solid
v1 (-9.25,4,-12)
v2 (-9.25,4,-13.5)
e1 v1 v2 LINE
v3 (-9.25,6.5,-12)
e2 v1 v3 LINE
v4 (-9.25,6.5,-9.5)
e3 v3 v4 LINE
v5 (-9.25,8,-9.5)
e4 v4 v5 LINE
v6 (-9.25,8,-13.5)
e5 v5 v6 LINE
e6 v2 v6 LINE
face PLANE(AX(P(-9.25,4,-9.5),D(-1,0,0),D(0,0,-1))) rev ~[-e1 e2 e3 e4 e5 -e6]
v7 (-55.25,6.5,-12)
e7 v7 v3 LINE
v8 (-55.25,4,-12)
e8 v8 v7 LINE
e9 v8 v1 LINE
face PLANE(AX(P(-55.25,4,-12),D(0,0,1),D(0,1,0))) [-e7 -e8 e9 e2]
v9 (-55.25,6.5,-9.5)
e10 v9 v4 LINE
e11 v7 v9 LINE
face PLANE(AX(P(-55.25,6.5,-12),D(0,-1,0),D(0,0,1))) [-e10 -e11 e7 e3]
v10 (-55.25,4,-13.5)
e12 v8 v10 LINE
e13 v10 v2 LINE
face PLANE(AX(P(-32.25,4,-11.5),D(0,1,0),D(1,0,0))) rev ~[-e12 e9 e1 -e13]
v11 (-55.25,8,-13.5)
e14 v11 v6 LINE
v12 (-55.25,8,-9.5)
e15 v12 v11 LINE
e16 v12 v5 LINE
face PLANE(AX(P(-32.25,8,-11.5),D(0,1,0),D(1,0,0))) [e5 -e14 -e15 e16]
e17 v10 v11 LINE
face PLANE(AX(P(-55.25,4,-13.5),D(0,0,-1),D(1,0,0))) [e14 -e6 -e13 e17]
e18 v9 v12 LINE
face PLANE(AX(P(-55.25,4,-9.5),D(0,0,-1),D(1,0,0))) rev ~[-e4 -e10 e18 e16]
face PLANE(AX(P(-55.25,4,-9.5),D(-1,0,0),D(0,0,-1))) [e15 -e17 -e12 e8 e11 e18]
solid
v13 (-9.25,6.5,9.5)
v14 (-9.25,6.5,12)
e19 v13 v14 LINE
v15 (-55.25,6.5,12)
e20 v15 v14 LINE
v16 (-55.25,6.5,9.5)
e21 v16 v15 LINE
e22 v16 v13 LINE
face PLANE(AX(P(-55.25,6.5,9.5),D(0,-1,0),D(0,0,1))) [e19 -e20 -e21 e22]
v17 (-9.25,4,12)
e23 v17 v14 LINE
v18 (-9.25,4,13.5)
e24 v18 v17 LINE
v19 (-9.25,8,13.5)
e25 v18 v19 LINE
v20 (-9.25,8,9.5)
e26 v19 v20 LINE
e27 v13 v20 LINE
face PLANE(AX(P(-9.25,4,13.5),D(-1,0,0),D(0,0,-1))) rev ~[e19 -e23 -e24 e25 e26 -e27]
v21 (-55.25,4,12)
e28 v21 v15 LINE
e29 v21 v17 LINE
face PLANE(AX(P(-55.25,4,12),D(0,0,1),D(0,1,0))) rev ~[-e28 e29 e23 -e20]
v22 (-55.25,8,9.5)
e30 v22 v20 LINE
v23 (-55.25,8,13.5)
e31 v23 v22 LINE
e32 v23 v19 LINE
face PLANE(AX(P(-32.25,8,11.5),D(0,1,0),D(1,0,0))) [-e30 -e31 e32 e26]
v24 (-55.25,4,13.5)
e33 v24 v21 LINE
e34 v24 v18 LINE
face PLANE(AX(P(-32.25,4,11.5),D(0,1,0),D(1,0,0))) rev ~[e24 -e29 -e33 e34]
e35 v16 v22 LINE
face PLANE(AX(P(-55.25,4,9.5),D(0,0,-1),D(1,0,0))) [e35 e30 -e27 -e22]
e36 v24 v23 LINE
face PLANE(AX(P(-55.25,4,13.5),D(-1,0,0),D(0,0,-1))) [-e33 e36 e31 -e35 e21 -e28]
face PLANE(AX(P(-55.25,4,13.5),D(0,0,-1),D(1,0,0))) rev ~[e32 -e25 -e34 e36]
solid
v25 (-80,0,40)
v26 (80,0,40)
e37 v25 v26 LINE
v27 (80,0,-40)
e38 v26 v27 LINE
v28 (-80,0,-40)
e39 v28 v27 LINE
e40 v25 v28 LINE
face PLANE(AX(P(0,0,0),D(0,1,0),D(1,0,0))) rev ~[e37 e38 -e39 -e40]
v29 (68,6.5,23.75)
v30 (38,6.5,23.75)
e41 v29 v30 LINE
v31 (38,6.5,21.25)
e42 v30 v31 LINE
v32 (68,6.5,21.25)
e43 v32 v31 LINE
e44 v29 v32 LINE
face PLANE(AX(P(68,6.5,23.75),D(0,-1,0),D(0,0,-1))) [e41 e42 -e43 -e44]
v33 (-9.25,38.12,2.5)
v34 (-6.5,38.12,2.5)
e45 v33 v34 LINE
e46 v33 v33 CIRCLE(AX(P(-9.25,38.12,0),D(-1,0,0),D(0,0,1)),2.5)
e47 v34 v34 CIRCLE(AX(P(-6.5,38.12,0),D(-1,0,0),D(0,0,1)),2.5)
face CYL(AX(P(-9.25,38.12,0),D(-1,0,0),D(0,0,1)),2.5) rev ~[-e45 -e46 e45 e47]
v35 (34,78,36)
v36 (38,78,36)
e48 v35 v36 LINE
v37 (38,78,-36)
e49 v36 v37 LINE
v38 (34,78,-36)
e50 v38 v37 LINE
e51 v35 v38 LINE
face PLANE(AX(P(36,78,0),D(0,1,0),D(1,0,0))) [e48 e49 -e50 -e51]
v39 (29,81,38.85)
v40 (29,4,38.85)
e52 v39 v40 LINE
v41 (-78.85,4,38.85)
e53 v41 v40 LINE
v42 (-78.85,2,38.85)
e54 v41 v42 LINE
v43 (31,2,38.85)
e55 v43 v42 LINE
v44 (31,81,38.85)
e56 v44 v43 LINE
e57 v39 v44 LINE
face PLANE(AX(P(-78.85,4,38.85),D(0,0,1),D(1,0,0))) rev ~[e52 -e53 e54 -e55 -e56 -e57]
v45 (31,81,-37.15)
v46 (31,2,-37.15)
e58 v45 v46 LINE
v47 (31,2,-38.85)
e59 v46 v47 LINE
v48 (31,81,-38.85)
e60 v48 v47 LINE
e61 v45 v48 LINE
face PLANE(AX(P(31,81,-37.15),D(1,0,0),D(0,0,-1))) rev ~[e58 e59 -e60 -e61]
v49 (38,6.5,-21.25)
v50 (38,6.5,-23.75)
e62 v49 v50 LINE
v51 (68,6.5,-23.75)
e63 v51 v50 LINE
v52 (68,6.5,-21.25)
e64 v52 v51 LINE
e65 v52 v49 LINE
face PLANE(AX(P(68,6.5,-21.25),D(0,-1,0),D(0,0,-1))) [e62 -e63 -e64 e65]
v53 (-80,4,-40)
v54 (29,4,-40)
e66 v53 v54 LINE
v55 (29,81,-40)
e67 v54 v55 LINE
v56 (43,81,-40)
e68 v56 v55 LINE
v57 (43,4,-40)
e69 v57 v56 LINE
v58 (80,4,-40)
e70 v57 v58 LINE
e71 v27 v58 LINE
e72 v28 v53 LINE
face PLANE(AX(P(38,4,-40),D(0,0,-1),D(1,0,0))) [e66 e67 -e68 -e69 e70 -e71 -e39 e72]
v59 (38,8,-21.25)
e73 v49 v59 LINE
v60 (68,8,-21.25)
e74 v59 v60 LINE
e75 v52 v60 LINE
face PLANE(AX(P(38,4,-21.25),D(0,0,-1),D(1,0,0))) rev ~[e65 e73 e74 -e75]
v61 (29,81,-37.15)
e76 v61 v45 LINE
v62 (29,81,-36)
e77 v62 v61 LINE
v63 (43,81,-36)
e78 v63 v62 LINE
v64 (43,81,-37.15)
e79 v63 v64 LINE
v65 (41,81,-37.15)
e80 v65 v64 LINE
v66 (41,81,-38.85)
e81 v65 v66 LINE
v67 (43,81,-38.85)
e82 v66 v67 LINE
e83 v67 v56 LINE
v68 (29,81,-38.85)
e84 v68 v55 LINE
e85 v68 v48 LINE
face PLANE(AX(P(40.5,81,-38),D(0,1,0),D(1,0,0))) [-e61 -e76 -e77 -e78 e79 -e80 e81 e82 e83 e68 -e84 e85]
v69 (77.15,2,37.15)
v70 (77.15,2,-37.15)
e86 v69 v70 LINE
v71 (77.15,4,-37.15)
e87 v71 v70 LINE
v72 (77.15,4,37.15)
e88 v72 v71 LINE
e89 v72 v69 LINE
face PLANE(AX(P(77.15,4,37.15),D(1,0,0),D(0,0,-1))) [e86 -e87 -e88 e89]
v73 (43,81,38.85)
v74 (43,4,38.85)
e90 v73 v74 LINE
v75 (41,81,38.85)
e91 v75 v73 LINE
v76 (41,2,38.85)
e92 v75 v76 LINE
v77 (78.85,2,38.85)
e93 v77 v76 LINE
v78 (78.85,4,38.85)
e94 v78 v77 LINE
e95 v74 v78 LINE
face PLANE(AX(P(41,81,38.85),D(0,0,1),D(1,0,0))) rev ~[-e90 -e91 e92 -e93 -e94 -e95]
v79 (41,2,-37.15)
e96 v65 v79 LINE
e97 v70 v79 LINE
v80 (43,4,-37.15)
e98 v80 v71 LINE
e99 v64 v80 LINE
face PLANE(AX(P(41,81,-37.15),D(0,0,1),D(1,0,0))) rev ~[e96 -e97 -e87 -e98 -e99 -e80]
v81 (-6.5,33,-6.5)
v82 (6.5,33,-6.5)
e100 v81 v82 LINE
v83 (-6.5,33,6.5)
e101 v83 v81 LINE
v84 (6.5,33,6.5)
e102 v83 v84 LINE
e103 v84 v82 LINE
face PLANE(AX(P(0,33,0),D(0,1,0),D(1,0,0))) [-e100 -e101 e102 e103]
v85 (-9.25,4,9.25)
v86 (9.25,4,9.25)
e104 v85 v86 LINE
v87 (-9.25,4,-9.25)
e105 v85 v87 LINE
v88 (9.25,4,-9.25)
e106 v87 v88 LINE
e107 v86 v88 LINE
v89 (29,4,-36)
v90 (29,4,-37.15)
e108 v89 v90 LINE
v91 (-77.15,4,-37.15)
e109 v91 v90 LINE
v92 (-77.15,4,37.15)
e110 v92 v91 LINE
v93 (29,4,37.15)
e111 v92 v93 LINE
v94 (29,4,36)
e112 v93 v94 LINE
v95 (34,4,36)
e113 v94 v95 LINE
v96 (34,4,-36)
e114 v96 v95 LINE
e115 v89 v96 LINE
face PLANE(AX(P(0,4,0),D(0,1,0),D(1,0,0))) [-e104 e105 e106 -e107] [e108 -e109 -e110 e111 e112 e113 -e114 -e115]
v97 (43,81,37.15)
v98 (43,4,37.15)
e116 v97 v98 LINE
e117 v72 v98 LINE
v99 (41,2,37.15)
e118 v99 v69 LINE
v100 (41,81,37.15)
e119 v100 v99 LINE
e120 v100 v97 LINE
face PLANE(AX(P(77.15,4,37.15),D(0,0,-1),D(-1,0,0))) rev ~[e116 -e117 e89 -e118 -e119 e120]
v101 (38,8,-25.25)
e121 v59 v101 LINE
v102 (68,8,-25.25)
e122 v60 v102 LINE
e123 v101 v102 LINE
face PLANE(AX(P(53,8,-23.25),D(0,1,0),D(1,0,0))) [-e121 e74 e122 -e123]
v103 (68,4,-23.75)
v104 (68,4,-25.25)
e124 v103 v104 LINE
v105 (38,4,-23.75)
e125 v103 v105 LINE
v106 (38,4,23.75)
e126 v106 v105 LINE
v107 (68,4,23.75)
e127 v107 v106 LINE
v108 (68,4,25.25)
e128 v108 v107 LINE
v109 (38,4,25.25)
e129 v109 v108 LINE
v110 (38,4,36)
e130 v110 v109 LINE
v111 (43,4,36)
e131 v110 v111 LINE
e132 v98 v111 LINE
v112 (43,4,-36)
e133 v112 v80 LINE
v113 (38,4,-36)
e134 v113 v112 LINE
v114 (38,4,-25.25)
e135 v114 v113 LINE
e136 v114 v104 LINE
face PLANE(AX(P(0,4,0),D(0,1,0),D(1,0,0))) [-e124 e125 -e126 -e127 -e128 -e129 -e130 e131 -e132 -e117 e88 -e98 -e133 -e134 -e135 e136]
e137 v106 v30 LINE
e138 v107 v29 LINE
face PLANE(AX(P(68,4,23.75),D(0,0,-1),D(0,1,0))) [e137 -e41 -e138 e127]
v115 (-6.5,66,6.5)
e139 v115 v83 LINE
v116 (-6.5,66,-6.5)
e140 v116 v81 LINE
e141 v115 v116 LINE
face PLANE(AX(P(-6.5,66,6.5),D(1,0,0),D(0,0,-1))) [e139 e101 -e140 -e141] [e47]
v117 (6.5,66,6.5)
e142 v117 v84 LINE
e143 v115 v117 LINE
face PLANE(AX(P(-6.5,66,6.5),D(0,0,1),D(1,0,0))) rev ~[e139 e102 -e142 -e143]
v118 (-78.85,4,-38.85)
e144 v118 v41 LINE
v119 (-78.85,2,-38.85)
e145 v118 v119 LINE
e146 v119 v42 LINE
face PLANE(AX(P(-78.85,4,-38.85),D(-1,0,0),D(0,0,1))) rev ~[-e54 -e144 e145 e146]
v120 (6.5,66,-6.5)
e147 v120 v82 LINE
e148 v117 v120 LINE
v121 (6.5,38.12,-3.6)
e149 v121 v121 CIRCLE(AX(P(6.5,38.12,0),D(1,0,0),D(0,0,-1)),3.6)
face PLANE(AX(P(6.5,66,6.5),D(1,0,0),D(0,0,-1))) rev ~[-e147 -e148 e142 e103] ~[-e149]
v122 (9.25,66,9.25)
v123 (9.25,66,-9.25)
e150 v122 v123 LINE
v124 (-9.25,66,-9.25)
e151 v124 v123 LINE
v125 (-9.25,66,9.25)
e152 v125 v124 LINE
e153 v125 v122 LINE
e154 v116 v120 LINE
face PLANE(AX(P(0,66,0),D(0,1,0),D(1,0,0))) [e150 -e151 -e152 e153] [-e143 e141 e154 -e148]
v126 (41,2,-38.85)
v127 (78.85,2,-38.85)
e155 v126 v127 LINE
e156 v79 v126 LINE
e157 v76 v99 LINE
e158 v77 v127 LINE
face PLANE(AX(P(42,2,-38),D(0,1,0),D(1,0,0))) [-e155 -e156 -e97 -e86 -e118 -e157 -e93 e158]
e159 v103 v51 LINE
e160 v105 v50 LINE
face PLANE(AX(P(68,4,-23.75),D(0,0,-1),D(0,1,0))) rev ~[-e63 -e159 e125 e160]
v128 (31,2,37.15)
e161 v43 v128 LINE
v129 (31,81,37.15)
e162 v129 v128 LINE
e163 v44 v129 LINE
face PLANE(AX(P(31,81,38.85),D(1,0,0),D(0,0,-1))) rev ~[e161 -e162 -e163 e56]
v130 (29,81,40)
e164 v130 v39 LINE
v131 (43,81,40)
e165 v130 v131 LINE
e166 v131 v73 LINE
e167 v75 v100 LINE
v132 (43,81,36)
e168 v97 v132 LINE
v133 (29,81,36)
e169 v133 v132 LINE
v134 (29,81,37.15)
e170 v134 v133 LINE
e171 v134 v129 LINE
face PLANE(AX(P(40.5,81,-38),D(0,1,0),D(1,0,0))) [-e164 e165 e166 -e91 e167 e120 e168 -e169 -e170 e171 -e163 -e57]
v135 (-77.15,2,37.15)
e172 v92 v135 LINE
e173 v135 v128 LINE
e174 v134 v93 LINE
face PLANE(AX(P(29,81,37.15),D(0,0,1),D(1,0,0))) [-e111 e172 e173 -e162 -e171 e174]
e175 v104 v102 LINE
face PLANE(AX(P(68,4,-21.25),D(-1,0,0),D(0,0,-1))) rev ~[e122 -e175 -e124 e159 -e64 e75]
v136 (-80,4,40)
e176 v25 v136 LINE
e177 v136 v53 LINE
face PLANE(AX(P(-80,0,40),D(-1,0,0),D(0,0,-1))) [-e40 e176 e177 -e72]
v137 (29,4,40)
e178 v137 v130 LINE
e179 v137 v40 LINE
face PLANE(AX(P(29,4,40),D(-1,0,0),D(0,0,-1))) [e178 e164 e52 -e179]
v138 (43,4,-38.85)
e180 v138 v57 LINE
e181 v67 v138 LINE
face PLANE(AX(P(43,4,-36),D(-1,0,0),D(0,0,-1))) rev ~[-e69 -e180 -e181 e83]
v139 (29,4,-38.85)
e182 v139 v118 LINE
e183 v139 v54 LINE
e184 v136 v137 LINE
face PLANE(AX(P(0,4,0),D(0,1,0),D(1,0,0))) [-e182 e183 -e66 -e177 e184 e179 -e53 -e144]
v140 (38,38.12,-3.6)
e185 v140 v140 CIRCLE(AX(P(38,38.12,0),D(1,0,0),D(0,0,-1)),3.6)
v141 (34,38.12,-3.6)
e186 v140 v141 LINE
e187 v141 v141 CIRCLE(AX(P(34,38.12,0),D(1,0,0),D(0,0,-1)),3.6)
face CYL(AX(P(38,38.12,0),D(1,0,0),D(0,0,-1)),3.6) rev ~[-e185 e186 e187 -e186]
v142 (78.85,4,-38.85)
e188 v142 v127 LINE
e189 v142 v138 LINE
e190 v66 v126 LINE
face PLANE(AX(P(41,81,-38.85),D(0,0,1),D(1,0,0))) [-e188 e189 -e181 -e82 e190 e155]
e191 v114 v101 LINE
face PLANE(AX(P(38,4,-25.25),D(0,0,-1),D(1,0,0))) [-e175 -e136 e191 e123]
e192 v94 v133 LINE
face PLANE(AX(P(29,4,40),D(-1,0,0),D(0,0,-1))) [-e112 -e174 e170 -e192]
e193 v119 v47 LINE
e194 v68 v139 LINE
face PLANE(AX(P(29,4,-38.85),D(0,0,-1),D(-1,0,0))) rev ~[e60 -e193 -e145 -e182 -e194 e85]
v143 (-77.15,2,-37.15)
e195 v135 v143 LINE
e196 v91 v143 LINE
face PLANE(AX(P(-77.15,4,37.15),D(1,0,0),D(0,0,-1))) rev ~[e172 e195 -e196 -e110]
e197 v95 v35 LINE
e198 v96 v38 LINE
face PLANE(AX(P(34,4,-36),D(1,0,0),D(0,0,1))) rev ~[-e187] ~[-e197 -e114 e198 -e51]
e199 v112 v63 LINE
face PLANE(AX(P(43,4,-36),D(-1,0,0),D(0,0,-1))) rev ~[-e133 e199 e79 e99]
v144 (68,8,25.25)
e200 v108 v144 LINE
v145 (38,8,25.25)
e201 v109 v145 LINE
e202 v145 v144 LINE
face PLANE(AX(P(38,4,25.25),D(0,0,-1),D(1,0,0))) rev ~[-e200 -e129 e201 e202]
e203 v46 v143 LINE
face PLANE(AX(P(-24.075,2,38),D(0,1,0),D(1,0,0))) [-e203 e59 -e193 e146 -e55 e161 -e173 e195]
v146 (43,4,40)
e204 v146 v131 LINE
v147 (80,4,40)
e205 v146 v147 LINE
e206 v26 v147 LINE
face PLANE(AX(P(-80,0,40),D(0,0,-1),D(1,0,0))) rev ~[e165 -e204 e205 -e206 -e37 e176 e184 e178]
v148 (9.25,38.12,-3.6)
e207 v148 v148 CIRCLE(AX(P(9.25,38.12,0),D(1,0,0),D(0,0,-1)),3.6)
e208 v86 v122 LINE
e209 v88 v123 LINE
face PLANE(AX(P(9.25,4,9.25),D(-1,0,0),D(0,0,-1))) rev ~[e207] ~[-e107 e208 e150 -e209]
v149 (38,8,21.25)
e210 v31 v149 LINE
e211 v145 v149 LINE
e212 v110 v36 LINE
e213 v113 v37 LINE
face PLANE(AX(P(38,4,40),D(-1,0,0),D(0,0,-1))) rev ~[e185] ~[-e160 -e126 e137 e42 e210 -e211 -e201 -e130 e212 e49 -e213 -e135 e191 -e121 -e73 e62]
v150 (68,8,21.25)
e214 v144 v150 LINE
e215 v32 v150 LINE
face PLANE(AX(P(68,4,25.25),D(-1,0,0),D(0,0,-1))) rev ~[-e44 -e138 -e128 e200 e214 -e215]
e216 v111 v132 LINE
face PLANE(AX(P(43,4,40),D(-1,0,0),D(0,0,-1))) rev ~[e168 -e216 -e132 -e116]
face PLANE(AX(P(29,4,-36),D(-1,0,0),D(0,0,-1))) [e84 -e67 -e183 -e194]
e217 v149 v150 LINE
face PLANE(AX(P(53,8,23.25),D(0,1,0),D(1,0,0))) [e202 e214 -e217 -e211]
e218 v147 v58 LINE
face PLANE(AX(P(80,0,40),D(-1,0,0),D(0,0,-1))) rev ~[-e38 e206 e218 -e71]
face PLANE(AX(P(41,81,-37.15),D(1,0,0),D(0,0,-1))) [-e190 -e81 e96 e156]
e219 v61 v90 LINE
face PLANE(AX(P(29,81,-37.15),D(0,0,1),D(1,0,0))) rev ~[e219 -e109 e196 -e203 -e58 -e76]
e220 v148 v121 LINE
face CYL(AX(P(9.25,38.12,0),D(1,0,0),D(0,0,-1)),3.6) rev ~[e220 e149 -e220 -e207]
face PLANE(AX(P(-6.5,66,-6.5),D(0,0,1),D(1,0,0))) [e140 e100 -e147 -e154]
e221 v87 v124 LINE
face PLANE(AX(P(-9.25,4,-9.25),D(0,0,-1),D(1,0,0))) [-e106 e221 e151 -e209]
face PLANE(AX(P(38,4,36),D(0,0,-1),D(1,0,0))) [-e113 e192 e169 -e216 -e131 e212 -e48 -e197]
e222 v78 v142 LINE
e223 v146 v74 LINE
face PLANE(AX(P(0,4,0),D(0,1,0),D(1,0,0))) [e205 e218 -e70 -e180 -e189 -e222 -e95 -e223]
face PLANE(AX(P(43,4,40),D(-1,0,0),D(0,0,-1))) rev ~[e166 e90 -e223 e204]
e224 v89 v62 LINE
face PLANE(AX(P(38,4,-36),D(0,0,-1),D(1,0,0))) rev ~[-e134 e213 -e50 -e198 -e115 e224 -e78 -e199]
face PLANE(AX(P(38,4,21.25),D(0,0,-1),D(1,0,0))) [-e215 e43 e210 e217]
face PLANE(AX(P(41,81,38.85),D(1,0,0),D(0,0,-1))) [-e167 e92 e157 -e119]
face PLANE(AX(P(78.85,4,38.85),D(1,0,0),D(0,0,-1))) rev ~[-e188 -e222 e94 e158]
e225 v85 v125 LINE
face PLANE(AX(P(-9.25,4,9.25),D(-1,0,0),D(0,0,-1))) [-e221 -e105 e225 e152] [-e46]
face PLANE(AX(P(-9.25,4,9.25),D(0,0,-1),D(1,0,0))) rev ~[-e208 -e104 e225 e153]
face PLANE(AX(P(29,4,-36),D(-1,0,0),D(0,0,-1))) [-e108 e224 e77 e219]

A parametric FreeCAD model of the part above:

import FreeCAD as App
import Part
import Sketcher

V = App.Vector


def add_polygon(sketch, points):
    """Adds a closed chain of lines whose ends are joined by coincident constraints."""
    first, n = sketch.GeometryCount, len(points)
    for a, b in zip(points, points[1:] + points[:1]):
        sketch.addGeometry(Part.LineSegment(App.Vector(*a, 0), App.Vector(*b, 0)), False)
    for i in range(n):
        sketch.addConstraint(Sketcher.Constraint("Coincident", first + i, 2, first + (i + 1) % n, 1))

doc = App.newDocument("Part")
params = doc.addObject("Spreadsheet::Sheet", "Params")
for row, (alias, value) in enumerate([
    ("sketch1_width", "160 mm"),
    ("sketch1_height", "80 mm"),
    ("pad1_length", "4 mm"),
    ("sketch2_width", "18.5 mm"),
    ("pad2_length", "62 mm"),
    ("sketch3_width", "13 mm"),
    ("pocket1_length", "33 mm"),
    ("sketch4_diameter", "7.2 mm"),
    ("pocket2_length", "9.161852 mm"),
    ("sketch5_diameter", "5 mm"),
    ("pocket3_length", "35 mm"),
    ("sketch6_width", "9 mm"),
    ("sketch6_width2", "5 mm"),
    ("sketch6_height", "80 mm"),
    ("sketch6_height2", "4 mm"),
    ("pad3_length", "77 mm"),
    ("sketch7_diameter", "7.2 mm"),
    ("pocket4_length", "5 mm"),
    ("sketch8_width", "2 mm"),
    ("sketch8_height", "1.7 mm"),
    ("pocket5_length", "79 mm"),
    ("sketch9_height", "1.7 mm"),
    ("sketch9_height2", "74.3 mm"),
    ("sketch9_width", "106.15 mm"),
    ("sketch9_width2", "107.85 mm"),
    ("pocket6_length", "2 mm"),
    ("sketch10_width", "30 mm"),
    ("sketch10_height", "4 mm"),
    ("pad4_length", "4 mm"),
    ("sketch11_width", "2.5 mm"),
    ("pocket7_length", "30 mm"),
    ("sketch12_width", "5 mm"),
    ("sketch12_height", "4 mm"),
    ("pad5_length", "77 mm"),
    ("sketch13_width", "2 mm"),
    ("sketch13_height", "1.7 mm"),
    ("pocket8_length", "79 mm"),
    ("sketch14_height", "1.7 mm"),
    ("sketch14_height2", "77.7 mm"),
    ("sketch14_width", "35.85 mm"),
    ("sketch14_width2", "34.15 mm"),
    ("pocket9_length", "2 mm"),
    ("sketch15_width", "4 mm"),
    ("sketch15_height", "72 mm"),
    ("pocket10_length", "3 mm"),
    ("sketch16_width", "46 mm"),
    ("sketch16_height", "4 mm"),
    ("pad6_length", "4 mm"),
    ("sketch17_width", "46 mm"),
    ("sketch17_height", "4 mm"),
    ("pad7_length", "4 mm"),
    ("sketch18_width", "2.5 mm"),
    ("pad8_length", "46 mm"),
], start=1):
    params.set(f"A{row}", alias)
    params.set(f"B{row}", "=" + value)
    params.setAlias(f"B{row}", alias)

body = doc.addObject("PartDesign::Body", "Body")

# Sketch on XZ plane
sketch1 = body.newObject("Sketcher::SketchObject", "Sketch")
sketch1.AttachmentSupport = (doc.getObject("XZ_Plane"), [""])
sketch1.MapMode = "FlatFace"
add_polygon(sketch1, [(-80, -40), (-80, 40), (80, 40), (80, -40)])  # lines 0-3
sketch1.addConstraint([
    Sketcher.Constraint("Vertical", 0),
    Sketcher.Constraint("Horizontal", 1),
    Sketcher.Constraint("Vertical", 2),
    Sketcher.Constraint("Horizontal", 3),
    Sketcher.Constraint("Symmetric", 0, 2, 2, 2, -1, 1),
    Sketcher.Constraint("DistanceX", 1, 1, 1, 2, 160.0),
    Sketcher.Constraint("DistanceY", 0, 1, 0, 2, 80.0),
])
sketch1.setExpression("Constraints[9]", "Params.sketch1_width")
sketch1.setExpression("Constraints[10]", "Params.sketch1_height")
pad1 = body.newObject("PartDesign::Pad", "Pad")
pad1.Profile = sketch1
pad1.setExpression("Length", "Params.pad1_length")
pad1.Reversed = True

# Sketch on XZ plane
sketch2 = body.newObject("Sketcher::SketchObject", "Sketch001")
sketch2.AttachmentSupport = (doc.getObject("XZ_Plane"), [""])
sketch2.MapMode = "FlatFace"
sketch2.AttachmentOffset = App.Placement(V(0, 0, -4), App.Rotation())
add_polygon(sketch2, [(-9, -9), (-9, 9), (9, 9), (9, -9)])  # lines 0-3
sketch2.addConstraint([
    Sketcher.Constraint("Vertical", 0),
    Sketcher.Constraint("Horizontal", 1),
    Sketcher.Constraint("Vertical", 2),
    Sketcher.Constraint("Horizontal", 3),
    Sketcher.Constraint("Symmetric", 0, 2, 2, 2, -1, 1),
    Sketcher.Constraint("Equal", 3, 0),
    Sketcher.Constraint("DistanceX", 1, 1, 1, 2, 18.5),
])
sketch2.setExpression("Constraints[10]", "Params.sketch2_width")
pad2 = body.newObject("PartDesign::Pad", "Pad001")
pad2.Profile = sketch2
pad2.setExpression("Length", "Params.pad2_length")
pad2.Reversed = True

# Sketch on XZ plane
sketch3 = body.newObject("Sketcher::SketchObject", "Sketch002")
sketch3.AttachmentSupport = (doc.getObject("XZ_Plane"), [""])
sketch3.MapMode = "FlatFace"
sketch3.AttachmentOffset = App.Placement(V(0, 0, -66), App.Rotation())
add_polygon(sketch3, [(-6, -6), (-6, 6), (6, 6), (6, -6)])  # lines 0-3
sketch3.addConstraint([
    Sketcher.Constraint("Vertical", 0),
    Sketcher.Constraint("Horizontal", 1),
    Sketcher.Constraint("Vertical", 2),
    Sketcher.Constraint("Horizontal", 3),
    Sketcher.Constraint("Symmetric", 0, 2, 2, 2, -1, 1),
    Sketcher.Constraint("Equal", 3, 0),
    Sketcher.Constraint("DistanceX", 1, 1, 1, 2, 13.0),
])
sketch3.setExpression("Constraints[10]", "Params.sketch3_width")
pocket1 = body.newObject("PartDesign::Pocket", "Pocket")
pocket1.Profile = sketch3
pocket1.setExpression("Length", "Params.pocket1_length")
pocket1.Reversed = True

# Sketch on YZ plane
sketch4 = body.newObject("Sketcher::SketchObject", "Sketch003")
sketch4.AttachmentSupport = (doc.getObject("YZ_Plane"), [""])
sketch4.MapMode = "FlatFace"
sketch4.AttachmentOffset = App.Placement(V(0, 0, 9.25), App.Rotation())
sketch4.addGeometry(Part.Circle(V(38.1, 0, 0), V(0, 0, 1), 3.6), False)
sketch4.addConstraint([
    Sketcher.Constraint("PointOnObject", 0, 3, -1),
    Sketcher.Constraint("Diameter", 0, 7.2),
    Sketcher.Constraint("DistanceX", -1, 1, 0, 3, 38.12),
])
sketch4.setExpression("Constraints[1]", "Params.sketch4_diameter")
pocket2 = body.newObject("PartDesign::Pocket", "Pocket001")
pocket2.Profile = sketch4
pocket2.setExpression("Length", "Params.pocket2_length")

# Sketch on YZ plane
sketch5 = body.newObject("Sketcher::SketchObject", "Sketch004")
sketch5.AttachmentSupport = (doc.getObject("YZ_Plane"), [""])
sketch5.MapMode = "FlatFace"
sketch5.AttachmentOffset = App.Placement(V(0, 0, -9.25), App.Rotation())
sketch5.addGeometry(Part.Circle(V(38.1, 0, 0), V(0, 0, 1), 2.5), False)
sketch5.addConstraint([
    Sketcher.Constraint("PointOnObject", 0, 3, -1),
    Sketcher.Constraint("Diameter", 0, 5.0),
    Sketcher.Constraint("DistanceX", -1, 1, 0, 3, 38.12),
])
sketch5.setExpression("Constraints[1]", "Params.sketch5_diameter")
pocket3 = body.newObject("PartDesign::Pocket", "Pocket002")
pocket3.Profile = sketch5
pocket3.setExpression("Length", "Params.pocket3_length")
pocket3.Reversed = True

# Sketch on XZ plane
sketch6 = body.newObject("Sketcher::SketchObject", "Sketch005")
sketch6.AttachmentSupport = (doc.getObject("XZ_Plane"), [""])
sketch6.MapMode = "FlatFace"
sketch6.AttachmentOffset = App.Placement(V(0, 0, -4), App.Rotation())
add_polygon(sketch6, [(38, 40), (38, -40), (29, -40), (29, -36), (34, -36), (34, 36), (29, 36), (29, 40)])  # lines 0-7
sketch6.addConstraint([
    Sketcher.Constraint("Vertical", 0),
    Sketcher.Constraint("Horizontal", 1),
    Sketcher.Constraint("Vertical", 2),
    Sketcher.Constraint("Horizontal", 3),
    Sketcher.Constraint("Vertical", 4),
    Sketcher.Constraint("Horizontal", 5),
    Sketcher.Constraint("Vertical", 6),
    Sketcher.Constraint("Horizontal", 7),
    Sketcher.Constraint("Symmetric", 2, 2, 5, 2, -1),
    Sketcher.Constraint("Equal", 2, 6),
    Sketcher.Constraint("DistanceX", 1, 2, 1, 1, 9.0),
    Sketcher.Constraint("DistanceX", 3, 1, 3, 2, 5.0),
    Sketcher.Constraint("DistanceY", 0, 2, 0, 1, 80.0),
    Sketcher.Constraint("DistanceY", 2, 1, 2, 2, 4.0),
    Sketcher.Constraint("DistanceX", -1, 1, 0, 2, 38.0),
])
sketch6.setExpression("Constraints[18]", "Params.sketch6_width")
sketch6.setExpression("Constraints[19]", "Params.sketch6_width2")
sketch6.setExpression("Constraints[20]", "Params.sketch6_height")
sketch6.setExpression("Constraints[21]", "Params.sketch6_height2")
pad3 = body.newObject("PartDesign::Pad", "Pad002")
pad3.Profile = sketch6
pad3.setExpression("Length", "Params.pad3_length")
pad3.Reversed = True

# Sketch on YZ plane
sketch7 = body.newObject("Sketcher::SketchObject", "Sketch006")
sketch7.AttachmentSupport = (doc.getObject("YZ_Plane"), [""])
sketch7.MapMode = "FlatFace"
sketch7.AttachmentOffset = App.Placement(V(0, 0, 38), App.Rotation())
sketch7.addGeometry(Part.Circle(V(38.1, 0, 0), V(0, 0, 1), 3.6), False)
sketch7.addConstraint([
    Sketcher.Constraint("PointOnObject", 0, 3, -1),
    Sketcher.Constraint("Diameter", 0, 7.2),
    Sketcher.Constraint("DistanceX", -1, 1, 0, 3, 38.12),
])
sketch7.setExpression("Constraints[1]", "Params.sketch7_diameter")
pocket4 = body.newObject("PartDesign::Pocket", "Pocket003")
pocket4.Profile = sketch7
pocket4.setExpression("Length", "Params.pocket4_length")

# Sketch on XZ plane
sketch8 = body.newObject("Sketcher::SketchObject", "Sketch007")
sketch8.AttachmentSupport = (doc.getObject("XZ_Plane"), [""])
sketch8.MapMode = "FlatFace"
sketch8.AttachmentOffset = App.Placement(V(0, 0, -81), App.Rotation())
add_polygon(sketch8, [(29, 37.1), (29, 38.9), (31, 38.9), (31, 37.1)])  # lines 0-3
add_polygon(sketch8, [(29, -38.9), (29, -37.1), (31, -37.1), (31, -38.9)])  # lines 4-7
sketch8.addConstraint([
    Sketcher.Constraint("Vertical", 0),
    Sketcher.Constraint("Horizontal", 1),
    Sketcher.Constraint("Vertical", 2),
    Sketcher.Constraint("Horizontal", 3),
    Sketcher.Constraint("Vertical", 4),
    Sketcher.Constraint("Horizontal", 5),
    Sketcher.Constraint("Vertical", 6),
    Sketcher.Constraint("Horizontal", 7),
    Sketcher.Constraint("Symmetric", 3, 2, 4, 2, -1),
    Sketcher.Constraint("Symmetric", 1, 2, 6, 2, -1),
    Sketcher.Constraint("DistanceX", 1, 1, 1, 2, 2.0),
    Sketcher.Constraint("DistanceY", 0, 1, 0, 2, 1.7),
    Sketcher.Constraint("DistanceX", -1, 1, 0, 2, 29.0),
    Sketcher.Constraint("DistanceY", 4, 2, 0, 2, 76.0),
])
sketch8.setExpression("Constraints[18]", "Params.sketch8_width")
sketch8.setExpression("Constraints[19]", "Params.sketch8_height")
pocket5 = body.newObject("PartDesign::Pocket", "Pocket004")
pocket5.Profile = sketch8
pocket5.setExpression("Length", "Params.pocket5_length")
pocket5.Reversed = True

# Sketch on XZ plane
sketch9 = body.newObject("Sketcher::SketchObject", "Sketch008")
sketch9.AttachmentSupport = (doc.getObject("XZ_Plane"), [""])
sketch9.MapMode = "FlatFace"
sketch9.AttachmentOffset = App.Placement(V(0, 0, -4), App.Rotation())
add_polygon(sketch9, [(29, 38.9), (29, 37.1), (-77.2, 37.1), (-77.2, -37.1), (29, -37.1), (29, -38.9), (-78.8, -38.9), (-78.8, 38.9)])  # lines 0-7
sketch9.addConstraint([
    Sketcher.Constraint("Vertical", 0),
    Sketcher.Constraint("Horizontal", 1),
    Sketcher.Constraint("Vertical", 2),
    Sketcher.Constraint("Horizontal", 3),
    Sketcher.Constraint("Vertical", 4),
    Sketcher.Constraint("Horizontal", 5),
    Sketcher.Constraint("Vertical", 6),
    Sketcher.Constraint("Horizontal", 7),
    Sketcher.Constraint("Symmetric", 0, 2, 3, 2, -1),
    Sketcher.Constraint("Equal", 0, 4),
    Sketcher.Constraint("DistanceY", 0, 2, 0, 1, 1.7),
    Sketcher.Constraint("DistanceY", 2, 2, 2, 1, 74.3),
    Sketcher.Constraint("DistanceX", -1, 1, 0, 2, 29.0),
    Sketcher.Constraint("DistanceX", 1, 2, 1, 1, 106.15),
    Sketcher.Constraint("DistanceX", 5, 2, 5, 1, 107.85),
])
sketch9.setExpression("Constraints[18]", "Params.sketch9_height")
sketch9.setExpression("Constraints[19]", "Params.sketch9_height2")
sketch9.setExpression("Constraints[21]", "Params.sketch9_width")
sketch9.setExpression("Constraints[22]", "Params.sketch9_width2")
pocket6 = body.newObject("PartDesign::Pocket", "Pocket005")
pocket6.Profile = sketch9
pocket6.setExpression("Length", "Params.pocket6_length")
pocket6.Reversed = True

# Sketch on XZ plane
sketch10 = body.newObject("Sketcher::SketchObject", "Sketch009")
sketch10.AttachmentSupport = (doc.getObject("XZ_Plane"), [""])
sketch10.MapMode = "FlatFace"
sketch10.AttachmentOffset = App.Placement(V(0, 0, -4), App.Rotation())
add_polygon(sketch10, [(38, -25.2), (38, -21.2), (68, -21.2), (68, -25.2)])  # lines 0-3
add_polygon(sketch10, [(38, 21.2), (38, 25.2), (68, 25.2), (68, 21.2)])  # lines 4-7
sketch10.addConstraint([
    Sketcher.Constraint("Vertical", 0),
    Sketcher.Constraint("Horizontal", 1),
    Sketcher.Constraint("Vertical", 2),
    Sketcher.Constraint("Horizontal", 3),
    Sketcher.Constraint("Vertical", 4),
    Sketcher.Constraint("Horizontal", 5),
    Sketcher.Constraint("Vertical", 6),
    Sketcher.Constraint("Horizontal", 7),
    Sketcher.Constraint("Symmetric", 3, 2, 4, 2, -1),
    Sketcher.Constraint("Symmetric", 1, 2, 6, 2, -1),
    Sketcher.Constraint("DistanceX", 1, 1, 1, 2, 30.0),
    Sketcher.Constraint("DistanceY", 0, 1, 0, 2, 4.0),
    Sketcher.Constraint("DistanceX", -1, 1, 0, 2, 38.0),
    Sketcher.Constraint("DistanceY", 0, 2, 4, 2, 46.5),
])
sketch10.setExpression("Constraints[18]", "Params.sketch10_width")
sketch10.setExpression("Constraints[19]", "Params.sketch10_height")
pad4 = body.newObject("PartDesign::Pad", "Pad003")
pad4.Profile = sketch10
pad4.setExpression("Length", "Params.pad4_length")
pad4.Reversed = True

# Sketch on YZ plane
sketch11 = body.newObject("Sketcher::SketchObject", "Sketch010")
sketch11.AttachmentSupport = (doc.getObject("YZ_Plane"), [""])
sketch11.MapMode = "FlatFace"
sketch11.AttachmentOffset = App.Placement(V(0, 0, 68), App.Rotation())
add_polygon(sketch11, [(6.5, 23.8), (4, 23.8), (4, 21.2), (6.5, 21.2)])  # lines 0-3
add_polygon(sketch11, [(6.5, -21.2), (4, -21.2), (4, -23.8), (6.5, -23.8)])  # lines 4-7
sketch11.addConstraint([
    Sketcher.Constraint("Horizontal", 0),
    Sketcher.Constraint("Vertical", 1),
    Sketcher.Constraint("Horizontal", 2),
    Sketcher.Constraint("Vertical", 3),
    Sketcher.Constraint("Horizontal", 4),
    Sketcher.Constraint("Vertical", 5),
    Sketcher.Constraint("Horizontal", 6),
    Sketcher.Constraint("Vertical", 7),
    Sketcher.Constraint("Symmetric", 1, 2, 4, 2, -1),
    Sketcher.Constraint("Symmetric", 3, 2, 6, 2, -1),
    Sketcher.Constraint("Equal", 6, 1),
    Sketcher.Constraint("DistanceX", 0, 2, 0, 1, 2.5),
    Sketcher.Constraint("DistanceX", -1, 1, 0, 2, 4.0),
    Sketcher.Constraint("DistanceY", 4, 2, 0, 2, 45.0),
])
sketch11.setExpression("Constraints[19]", "Params.sketch11_width")
pocket7 = body.newObject("PartDesign::Pocket", "Pocket006")
pocket7.Profile = sketch11
pocket7.setExpression("Length", "Params.pocket7_length")

# Sketch on XZ plane
sketch12 = body.newObject("Sketcher::SketchObject", "Sketch011")
sketch12.AttachmentSupport = (doc.getObject("XZ_Plane"), [""])
sketch12.MapMode = "FlatFace"
sketch12.AttachmentOffset = App.Placement(V(0, 0, -4), App.Rotation())
add_polygon(sketch12, [(38, -40), (38, -36), (43, -36), (43, -40)])  # lines 0-3
add_polygon(sketch12, [(38, 36), (38, 40), (43, 40), (43, 36)])  # lines 4-7
sketch12.addConstraint([
    Sketcher.Constraint("Vertical", 0),
    Sketcher.Constraint("Horizontal", 1),
    Sketcher.Constraint("Vertical", 2),
    Sketcher.Constraint("Horizontal", 3),
    Sketcher.Constraint("Vertical", 4),
    Sketcher.Constraint("Horizontal", 5),
    Sketcher.Constraint("Vertical", 6),
    Sketcher.Constraint("Horizontal", 7),
    Sketcher.Constraint("Symmetric", 3, 2, 4, 2, -1),
    Sketcher.Constraint("Symmetric", 1, 2, 6, 2, -1),
    Sketcher.Constraint("DistanceX", 1, 1, 1, 2, 5.0),
    Sketcher.Constraint("DistanceY", 0, 1, 0, 2, 4.0),
    Sketcher.Constraint("DistanceX", -1, 1, 0, 2, 38.0),
    Sketcher.Constraint("DistanceY", 0, 2, -1, 1, 36.0),
])
sketch12.setExpression("Constraints[18]", "Params.sketch12_width")
sketch12.setExpression("Constraints[19]", "Params.sketch12_height")
pad5 = body.newObject("PartDesign::Pad", "Pad004")
pad5.Profile = sketch12
pad5.setExpression("Length", "Params.pad5_length")
pad5.Reversed = True

# Sketch on XZ plane
sketch13 = body.newObject("Sketcher::SketchObject", "Sketch012")
sketch13.AttachmentSupport = (doc.getObject("XZ_Plane"), [""])
sketch13.MapMode = "FlatFace"
sketch13.AttachmentOffset = App.Placement(V(0, 0, -81), App.Rotation())
add_polygon(sketch13, [(41, 37.1), (41, 38.9), (43, 38.9), (43, 37.1)])  # lines 0-3
add_polygon(sketch13, [(41, -38.9), (41, -37.1), (43, -37.1), (43, -38.9)])  # lines 4-7
sketch13.addConstraint([
    Sketcher.Constraint("Vertical", 0),
    Sketcher.Constraint("Horizontal", 1),
    Sketcher.Constraint("Vertical", 2),
    Sketcher.Constraint("Horizontal", 3),
    Sketcher.Constraint("Vertical", 4),
    Sketcher.Constraint("Horizontal", 5),
    Sketcher.Constraint("Vertical", 6),
    Sketcher.Constraint("Horizontal", 7),
    Sketcher.Constraint("Symmetric", 3, 2, 4, 2, -1),
    Sketcher.Constraint("Symmetric", 1, 2, 6, 2, -1),
    Sketcher.Constraint("DistanceX", 1, 1, 1, 2, 2.0),
    Sketcher.Constraint("DistanceY", 0, 1, 0, 2, 1.7),
    Sketcher.Constraint("DistanceX", -1, 1, 0, 2, 41.0),
    Sketcher.Constraint("DistanceY", 4, 2, 0, 2, 76.0),
])
sketch13.setExpression("Constraints[18]", "Params.sketch13_width")
sketch13.setExpression("Constraints[19]", "Params.sketch13_height")
pocket8 = body.newObject("PartDesign::Pocket", "Pocket007")
pocket8.Profile = sketch13
pocket8.setExpression("Length", "Params.pocket8_length")
pocket8.Reversed = True

# Sketch on XZ plane
sketch14 = body.newObject("Sketcher::SketchObject", "Sketch013")
sketch14.AttachmentSupport = (doc.getObject("XZ_Plane"), [""])
sketch14.MapMode = "FlatFace"
sketch14.AttachmentOffset = App.Placement(V(0, 0, -4), App.Rotation())
add_polygon(sketch14, [(43, 37.1), (43, 38.9), (78.8, 38.9), (78.8, -38.9), (43, -38.9), (43, -37.1), (77.2, -37.1), (77.2, 37.1)])  # lines 0-7
sketch14.addConstraint([
    Sketcher.Constraint("Vertical", 0),
    Sketcher.Constraint("Horizontal", 1),
    Sketcher.Constraint("Vertical", 2),
    Sketcher.Constraint("Horizontal", 3),
    Sketcher.Constraint("Vertical", 4),
    Sketcher.Constraint("Horizontal", 5),
    Sketcher.Constraint("Vertical", 6),
    Sketcher.Constraint("Horizontal", 7),
    Sketcher.Constraint("Symmetric", 0, 2, 3, 2, -1),
    Sketcher.Constraint("Equal", 0, 4),
    Sketcher.Constraint("DistanceY", 0, 1, 0, 2, 1.7),
    Sketcher.Constraint("DistanceY", 2, 2, 2, 1, 77.7),
    Sketcher.Constraint("DistanceX", -1, 1, 0, 2, 43.0),
    Sketcher.Constraint("DistanceX", 1, 1, 1, 2, 35.85),
    Sketcher.Constraint("DistanceX", 5, 1, 5, 2, 34.15),
])
sketch14.setExpression("Constraints[18]", "Params.sketch14_height")
sketch14.setExpression("Constraints[19]", "Params.sketch14_height2")
sketch14.setExpression("Constraints[21]", "Params.sketch14_width")
sketch14.setExpression("Constraints[22]", "Params.sketch14_width2")
pocket9 = body.newObject("PartDesign::Pocket", "Pocket008")
pocket9.Profile = sketch14
pocket9.setExpression("Length", "Params.pocket9_length")
pocket9.Reversed = True

# Sketch on XZ plane
sketch15 = body.newObject("Sketcher::SketchObject", "Sketch014")
sketch15.AttachmentSupport = (doc.getObject("XZ_Plane"), [""])
sketch15.MapMode = "FlatFace"
sketch15.AttachmentOffset = App.Placement(V(0, 0, -81), App.Rotation())
add_polygon(sketch15, [(34, -36), (34, 36), (38, 36), (38, -36)])  # lines 0-3
sketch15.addConstraint([
    Sketcher.Constraint("Vertical", 0),
    Sketcher.Constraint("Horizontal", 1),
    Sketcher.Constraint("Vertical", 2),
    Sketcher.Constraint("Horizontal", 3),
    Sketcher.Constraint("DistanceX", 1, 1, 1, 2, 4.0),
    Sketcher.Constraint("DistanceY", 0, 1, 0, 2, 72.0),
    Sketcher.Constraint("DistanceX", -1, 1, 0, 2, 34.0),
    Sketcher.Constraint("DistanceY", -1, 1, 0, 2, 36.0),
])
sketch15.setExpression("Constraints[8]", "Params.sketch15_width")
sketch15.setExpression("Constraints[9]", "Params.sketch15_height")
pocket10 = body.newObject("PartDesign::Pocket", "Pocket009")
pocket10.Profile = sketch15
pocket10.setExpression("Length", "Params.pocket10_length")
pocket10.Reversed = True
body2 = doc.addObject("PartDesign::Body", "Body001")

# Sketch on XZ plane
sketch16 = body2.newObject("Sketcher::SketchObject", "Sketch015")
sketch16.AttachmentSupport = (doc.getObject("XZ_Plane001"), [""])
sketch16.MapMode = "FlatFace"
sketch16.AttachmentOffset = App.Placement(V(0, 0, -4), App.Rotation())
add_polygon(sketch16, [(-55.2, 9.5), (-55.2, 13.5), (-9.2, 13.5), (-9.2, 9.5)])  # lines 0-3
sketch16.addConstraint([
    Sketcher.Constraint("Vertical", 0),
    Sketcher.Constraint("Horizontal", 1),
    Sketcher.Constraint("Vertical", 2),
    Sketcher.Constraint("Horizontal", 3),
    Sketcher.Constraint("DistanceX", 1, 1, 1, 2, 46.0),
    Sketcher.Constraint("DistanceY", 0, 1, 0, 2, 4.0),
    Sketcher.Constraint("DistanceY", -1, 1, 0, 2, 13.5),
    Sketcher.Constraint("DistanceX", 0, 2, -1, 1, 55.25),
])
sketch16.setExpression("Constraints[8]", "Params.sketch16_width")
sketch16.setExpression("Constraints[9]", "Params.sketch16_height")
pad6 = body2.newObject("PartDesign::Pad", "Pad005")
pad6.Profile = sketch16
pad6.setExpression("Length", "Params.pad6_length")
pad6.Reversed = True
body3 = doc.addObject("PartDesign::Body", "Body002")

# Sketch on XZ plane
sketch17 = body3.newObject("Sketcher::SketchObject", "Sketch016")
sketch17.AttachmentSupport = (doc.getObject("XZ_Plane002"), [""])
sketch17.MapMode = "FlatFace"
sketch17.AttachmentOffset = App.Placement(V(0, 0, -4), App.Rotation())
add_polygon(sketch17, [(-55.2, -13.5), (-55.2, -9.5), (-9.2, -9.5), (-9.2, -13.5)])  # lines 0-3
sketch17.addConstraint([
    Sketcher.Constraint("Vertical", 0),
    Sketcher.Constraint("Horizontal", 1),
    Sketcher.Constraint("Vertical", 2),
    Sketcher.Constraint("Horizontal", 3),
    Sketcher.Constraint("DistanceX", 1, 1, 1, 2, 46.0),
    Sketcher.Constraint("DistanceY", 0, 1, 0, 2, 4.0),
    Sketcher.Constraint("DistanceY", 0, 2, -1, 1, 9.5),
    Sketcher.Constraint("DistanceX", 0, 2, -1, 1, 55.25),
])
sketch17.setExpression("Constraints[8]", "Params.sketch17_width")
sketch17.setExpression("Constraints[9]", "Params.sketch17_height")
pad7 = body3.newObject("PartDesign::Pad", "Pad006")
pad7.Profile = sketch17
pad7.setExpression("Length", "Params.pad7_length")
pad7.Reversed = True
body4 = doc.addObject("PartDesign::Body", "Body003")
body4.AllowCompound = True

# Sketch on YZ plane
sketch18 = body4.newObject("Sketcher::SketchObject", "Sketch017")
sketch18.AttachmentSupport = (doc.getObject("YZ_Plane003"), [""])
sketch18.MapMode = "FlatFace"
sketch18.AttachmentOffset = App.Placement(V(0, 0, -55.25), App.Rotation())
add_polygon(sketch18, [(6.5, -12), (4, -12), (4, -9.5), (6.5, -9.5)])  # lines 0-3
add_polygon(sketch18, [(6.5, 9.5), (4, 9.5), (4, 12), (6.5, 12)])  # lines 4-7
sketch18.addConstraint([
    Sketcher.Constraint("Horizontal", 0),
    Sketcher.Constraint("Vertical", 1),
    Sketcher.Constraint("Horizontal", 2),
    Sketcher.Constraint("Vertical", 3),
    Sketcher.Constraint("Horizontal", 4),
    Sketcher.Constraint("Vertical", 5),
    Sketcher.Constraint("Horizontal", 6),
    Sketcher.Constraint("Vertical", 7),
    Sketcher.Constraint("Symmetric", 1, 2, 4, 2, -1),
    Sketcher.Constraint("Symmetric", 3, 2, 6, 2, -1),
    Sketcher.Constraint("Equal", 6, 1),
    Sketcher.Constraint("DistanceX", 0, 2, 0, 1, 2.5),
    Sketcher.Constraint("DistanceX", -1, 1, 0, 2, 4.0),
    Sketcher.Constraint("DistanceY", 0, 2, -1, 1, 12.0),
])
sketch18.setExpression("Constraints[19]", "Params.sketch18_width")
pad8 = body4.newObject("PartDesign::Pad", "Pad007")
pad8.Profile = sketch18
pad8.setExpression("Length", "Params.pad8_length")
doc.recompute()

body5 = doc.addObject("PartDesign::Body", "Body004")
body5.BaseFeature = body4
boolean = body2.newObject("PartDesign::Boolean", "Boolean")
boolean.Type = "Cut"
boolean.addObjects([body5])
doc.recompute()

boolean2 = body3.newObject("PartDesign::Boolean", "Boolean001")
boolean2.Type = "Cut"
boolean2.addObjects([body4])

doc.recompute()
